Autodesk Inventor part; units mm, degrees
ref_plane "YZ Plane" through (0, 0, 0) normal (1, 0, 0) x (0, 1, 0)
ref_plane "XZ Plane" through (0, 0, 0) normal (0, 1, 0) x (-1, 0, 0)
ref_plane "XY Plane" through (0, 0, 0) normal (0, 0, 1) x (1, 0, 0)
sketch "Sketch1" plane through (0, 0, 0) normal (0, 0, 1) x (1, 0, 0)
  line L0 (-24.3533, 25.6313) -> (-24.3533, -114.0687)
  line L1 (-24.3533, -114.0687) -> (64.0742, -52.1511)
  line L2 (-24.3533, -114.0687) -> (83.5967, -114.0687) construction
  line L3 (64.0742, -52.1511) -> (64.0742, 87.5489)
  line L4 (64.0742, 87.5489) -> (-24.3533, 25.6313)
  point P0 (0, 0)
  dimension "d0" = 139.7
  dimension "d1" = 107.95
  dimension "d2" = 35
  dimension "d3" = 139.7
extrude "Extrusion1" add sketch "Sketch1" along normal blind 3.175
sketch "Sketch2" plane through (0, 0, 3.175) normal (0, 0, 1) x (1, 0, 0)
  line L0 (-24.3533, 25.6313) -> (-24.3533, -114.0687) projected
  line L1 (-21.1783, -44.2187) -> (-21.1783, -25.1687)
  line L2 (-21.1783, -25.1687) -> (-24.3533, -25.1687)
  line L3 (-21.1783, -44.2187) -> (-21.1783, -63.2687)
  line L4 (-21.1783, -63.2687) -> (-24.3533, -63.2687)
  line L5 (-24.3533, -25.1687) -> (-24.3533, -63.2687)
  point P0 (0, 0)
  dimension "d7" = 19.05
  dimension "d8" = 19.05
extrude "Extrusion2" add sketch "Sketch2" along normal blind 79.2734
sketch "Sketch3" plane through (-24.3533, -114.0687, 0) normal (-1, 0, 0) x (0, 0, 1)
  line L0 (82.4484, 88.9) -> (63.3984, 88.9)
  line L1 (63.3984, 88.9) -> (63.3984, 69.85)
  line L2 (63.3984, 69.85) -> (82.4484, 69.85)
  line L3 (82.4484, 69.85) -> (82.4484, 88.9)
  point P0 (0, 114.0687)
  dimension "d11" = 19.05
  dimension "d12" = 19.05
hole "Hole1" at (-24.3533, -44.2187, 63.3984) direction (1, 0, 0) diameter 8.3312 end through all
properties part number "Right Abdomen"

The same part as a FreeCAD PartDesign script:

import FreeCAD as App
import Part
import Sketcher
from FreeCAD import Vector
Q = App.Units.Quantity

doc = App.newDocument("Part")
body = doc.addObject("PartDesign::Body", "Body")

# Sketch on XY plane
sketch1 = doc.addObject("Sketcher::SketchObject", "Sketch")
body.addObject(sketch1)
sketch1.AttachmentSupport = (doc.XY_Plane, [""])
sketch1.MapMode = "FlatFace"
sketch1.addGeometry([
    Part.LineSegment(Vector(64, 88, 0), Vector(-24, 26, 0)),
    Part.LineSegment(Vector(-24, 26, 0), Vector(-24, -114, 0)),
    Part.LineSegment(Vector(-24, -114, 0), Vector(64, -52, 0)),
    Part.LineSegment(Vector(64, -52, 0), Vector(64, 88, 0)),
], False)
sketch1.addConstraint([
    Sketcher.Constraint("Coincident", 0, 2, 1, 1),
    Sketcher.Constraint("Coincident", 1, 2, 2, 1),
    Sketcher.Constraint("Coincident", 2, 2, 3, 1),
    Sketcher.Constraint("Coincident", 3, 2, 0, 1),
    Sketcher.Constraint("Vertical", 1),
    Sketcher.Constraint("Vertical", 3),
    Sketcher.Constraint("Parallel", 0, 2),
    Sketcher.Constraint("DistanceY", 1, 2, 1, 1, Q("5.5 in")),
    Sketcher.Constraint("Angle", 2, Q("35 deg")),
    Sketcher.Constraint("Distance", 0, Q("4.25 in")),
    Sketcher.Constraint("DistanceX", 0, 2, -1, 1, Q("0.9588 in")),
    Sketcher.Constraint("DistanceY", -1, 1, 0, 2, Q("1.0091 in")),
])
pad1 = doc.addObject("PartDesign::Pad", "Pad")
body.addObject(pad1)
pad1.Profile = sketch1
pad1.Length = Q("0.125 in")

# Sketch on XY plane
sketch2 = doc.addObject("Sketcher::SketchObject", "Sketch001")
body.addObject(sketch2)
sketch2.AttachmentSupport = (doc.XY_Plane, [""])
sketch2.MapMode = "FlatFace"
sketch2.AttachmentOffset = App.Placement(Vector(0, 0, 0.125 * 25.4), App.Rotation())
sketch2.addGeometry([
    Part.LineSegment(Vector(-21.2, -25.2, 0), Vector(-24.4, -25.2, 0)),
    Part.LineSegment(Vector(-24.4, -25.2, 0), Vector(-24.4, -63.3, 0)),
    Part.LineSegment(Vector(-24.4, -63.3, 0), Vector(-21.2, -63.3, 0)),
    Part.LineSegment(Vector(-21.2, -63.3, 0), Vector(-21.2, -25.2, 0)),
], False)
sketch2.addConstraint([
    Sketcher.Constraint("Coincident", 0, 2, 1, 1),
    Sketcher.Constraint("Coincident", 1, 2, 2, 1),
    Sketcher.Constraint("Coincident", 2, 2, 3, 1),
    Sketcher.Constraint("Coincident", 3, 2, 0, 1),
    Sketcher.Constraint("Horizontal", 0),
    Sketcher.Constraint("Vertical", 1),
    Sketcher.Constraint("Horizontal", 2),
    Sketcher.Constraint("Vertical", 3),
    Sketcher.Constraint("DistanceY", 1, 2, 1, 1, Q("1.5 in")),
    Sketcher.Constraint("DistanceX", 0, 2, 0, 1, Q("0.125 in")),
    Sketcher.Constraint("DistanceX", 0, 2, -1, 1, Q("0.9588 in")),
    Sketcher.Constraint("DistanceY", 0, 2, -1, 1, Q("0.9909 in")),
])
pad2 = doc.addObject("PartDesign::Pad", "Pad001")
body.addObject(pad2)
pad2.Profile = sketch2
pad2.Length = Q("3.121 in")

# Sketch on YZ plane
sketch3 = doc.addObject("Sketcher::SketchObject", "Sketch002")
body.addObject(sketch3)
sketch3.AttachmentSupport = (doc.YZ_Plane, [""])
sketch3.MapMode = "FlatFace"
sketch3.AttachmentOffset = App.Placement(Vector(0, 0, -0.9587913 * 25.4), App.Rotation())
sketch3.addGeometry(Part.Circle(Vector(-44.2, 63.4, 0), Vector(0, 0, 1), 4.2), False)
sketch3.addConstraint([
    Sketcher.Constraint("Diameter", 0, Q("0.328 in")),
    Sketcher.Constraint("DistanceY", -1, 1, 0, 3, Q("2.496 in")),
    Sketcher.Constraint("DistanceX", 0, 3, -1, 1, Q("1.7409 in")),
])
doc.recompute()
hole = doc.addObject("PartDesign::Hole", "Hole")
body.addObject(hole)
hole.Profile = sketch3
hole.ThreadType = "None"
hole.Diameter = Q("0.328 in")
hole.DepthType = "ThroughAll"
hole.Reversed = True

doc.recompute()
